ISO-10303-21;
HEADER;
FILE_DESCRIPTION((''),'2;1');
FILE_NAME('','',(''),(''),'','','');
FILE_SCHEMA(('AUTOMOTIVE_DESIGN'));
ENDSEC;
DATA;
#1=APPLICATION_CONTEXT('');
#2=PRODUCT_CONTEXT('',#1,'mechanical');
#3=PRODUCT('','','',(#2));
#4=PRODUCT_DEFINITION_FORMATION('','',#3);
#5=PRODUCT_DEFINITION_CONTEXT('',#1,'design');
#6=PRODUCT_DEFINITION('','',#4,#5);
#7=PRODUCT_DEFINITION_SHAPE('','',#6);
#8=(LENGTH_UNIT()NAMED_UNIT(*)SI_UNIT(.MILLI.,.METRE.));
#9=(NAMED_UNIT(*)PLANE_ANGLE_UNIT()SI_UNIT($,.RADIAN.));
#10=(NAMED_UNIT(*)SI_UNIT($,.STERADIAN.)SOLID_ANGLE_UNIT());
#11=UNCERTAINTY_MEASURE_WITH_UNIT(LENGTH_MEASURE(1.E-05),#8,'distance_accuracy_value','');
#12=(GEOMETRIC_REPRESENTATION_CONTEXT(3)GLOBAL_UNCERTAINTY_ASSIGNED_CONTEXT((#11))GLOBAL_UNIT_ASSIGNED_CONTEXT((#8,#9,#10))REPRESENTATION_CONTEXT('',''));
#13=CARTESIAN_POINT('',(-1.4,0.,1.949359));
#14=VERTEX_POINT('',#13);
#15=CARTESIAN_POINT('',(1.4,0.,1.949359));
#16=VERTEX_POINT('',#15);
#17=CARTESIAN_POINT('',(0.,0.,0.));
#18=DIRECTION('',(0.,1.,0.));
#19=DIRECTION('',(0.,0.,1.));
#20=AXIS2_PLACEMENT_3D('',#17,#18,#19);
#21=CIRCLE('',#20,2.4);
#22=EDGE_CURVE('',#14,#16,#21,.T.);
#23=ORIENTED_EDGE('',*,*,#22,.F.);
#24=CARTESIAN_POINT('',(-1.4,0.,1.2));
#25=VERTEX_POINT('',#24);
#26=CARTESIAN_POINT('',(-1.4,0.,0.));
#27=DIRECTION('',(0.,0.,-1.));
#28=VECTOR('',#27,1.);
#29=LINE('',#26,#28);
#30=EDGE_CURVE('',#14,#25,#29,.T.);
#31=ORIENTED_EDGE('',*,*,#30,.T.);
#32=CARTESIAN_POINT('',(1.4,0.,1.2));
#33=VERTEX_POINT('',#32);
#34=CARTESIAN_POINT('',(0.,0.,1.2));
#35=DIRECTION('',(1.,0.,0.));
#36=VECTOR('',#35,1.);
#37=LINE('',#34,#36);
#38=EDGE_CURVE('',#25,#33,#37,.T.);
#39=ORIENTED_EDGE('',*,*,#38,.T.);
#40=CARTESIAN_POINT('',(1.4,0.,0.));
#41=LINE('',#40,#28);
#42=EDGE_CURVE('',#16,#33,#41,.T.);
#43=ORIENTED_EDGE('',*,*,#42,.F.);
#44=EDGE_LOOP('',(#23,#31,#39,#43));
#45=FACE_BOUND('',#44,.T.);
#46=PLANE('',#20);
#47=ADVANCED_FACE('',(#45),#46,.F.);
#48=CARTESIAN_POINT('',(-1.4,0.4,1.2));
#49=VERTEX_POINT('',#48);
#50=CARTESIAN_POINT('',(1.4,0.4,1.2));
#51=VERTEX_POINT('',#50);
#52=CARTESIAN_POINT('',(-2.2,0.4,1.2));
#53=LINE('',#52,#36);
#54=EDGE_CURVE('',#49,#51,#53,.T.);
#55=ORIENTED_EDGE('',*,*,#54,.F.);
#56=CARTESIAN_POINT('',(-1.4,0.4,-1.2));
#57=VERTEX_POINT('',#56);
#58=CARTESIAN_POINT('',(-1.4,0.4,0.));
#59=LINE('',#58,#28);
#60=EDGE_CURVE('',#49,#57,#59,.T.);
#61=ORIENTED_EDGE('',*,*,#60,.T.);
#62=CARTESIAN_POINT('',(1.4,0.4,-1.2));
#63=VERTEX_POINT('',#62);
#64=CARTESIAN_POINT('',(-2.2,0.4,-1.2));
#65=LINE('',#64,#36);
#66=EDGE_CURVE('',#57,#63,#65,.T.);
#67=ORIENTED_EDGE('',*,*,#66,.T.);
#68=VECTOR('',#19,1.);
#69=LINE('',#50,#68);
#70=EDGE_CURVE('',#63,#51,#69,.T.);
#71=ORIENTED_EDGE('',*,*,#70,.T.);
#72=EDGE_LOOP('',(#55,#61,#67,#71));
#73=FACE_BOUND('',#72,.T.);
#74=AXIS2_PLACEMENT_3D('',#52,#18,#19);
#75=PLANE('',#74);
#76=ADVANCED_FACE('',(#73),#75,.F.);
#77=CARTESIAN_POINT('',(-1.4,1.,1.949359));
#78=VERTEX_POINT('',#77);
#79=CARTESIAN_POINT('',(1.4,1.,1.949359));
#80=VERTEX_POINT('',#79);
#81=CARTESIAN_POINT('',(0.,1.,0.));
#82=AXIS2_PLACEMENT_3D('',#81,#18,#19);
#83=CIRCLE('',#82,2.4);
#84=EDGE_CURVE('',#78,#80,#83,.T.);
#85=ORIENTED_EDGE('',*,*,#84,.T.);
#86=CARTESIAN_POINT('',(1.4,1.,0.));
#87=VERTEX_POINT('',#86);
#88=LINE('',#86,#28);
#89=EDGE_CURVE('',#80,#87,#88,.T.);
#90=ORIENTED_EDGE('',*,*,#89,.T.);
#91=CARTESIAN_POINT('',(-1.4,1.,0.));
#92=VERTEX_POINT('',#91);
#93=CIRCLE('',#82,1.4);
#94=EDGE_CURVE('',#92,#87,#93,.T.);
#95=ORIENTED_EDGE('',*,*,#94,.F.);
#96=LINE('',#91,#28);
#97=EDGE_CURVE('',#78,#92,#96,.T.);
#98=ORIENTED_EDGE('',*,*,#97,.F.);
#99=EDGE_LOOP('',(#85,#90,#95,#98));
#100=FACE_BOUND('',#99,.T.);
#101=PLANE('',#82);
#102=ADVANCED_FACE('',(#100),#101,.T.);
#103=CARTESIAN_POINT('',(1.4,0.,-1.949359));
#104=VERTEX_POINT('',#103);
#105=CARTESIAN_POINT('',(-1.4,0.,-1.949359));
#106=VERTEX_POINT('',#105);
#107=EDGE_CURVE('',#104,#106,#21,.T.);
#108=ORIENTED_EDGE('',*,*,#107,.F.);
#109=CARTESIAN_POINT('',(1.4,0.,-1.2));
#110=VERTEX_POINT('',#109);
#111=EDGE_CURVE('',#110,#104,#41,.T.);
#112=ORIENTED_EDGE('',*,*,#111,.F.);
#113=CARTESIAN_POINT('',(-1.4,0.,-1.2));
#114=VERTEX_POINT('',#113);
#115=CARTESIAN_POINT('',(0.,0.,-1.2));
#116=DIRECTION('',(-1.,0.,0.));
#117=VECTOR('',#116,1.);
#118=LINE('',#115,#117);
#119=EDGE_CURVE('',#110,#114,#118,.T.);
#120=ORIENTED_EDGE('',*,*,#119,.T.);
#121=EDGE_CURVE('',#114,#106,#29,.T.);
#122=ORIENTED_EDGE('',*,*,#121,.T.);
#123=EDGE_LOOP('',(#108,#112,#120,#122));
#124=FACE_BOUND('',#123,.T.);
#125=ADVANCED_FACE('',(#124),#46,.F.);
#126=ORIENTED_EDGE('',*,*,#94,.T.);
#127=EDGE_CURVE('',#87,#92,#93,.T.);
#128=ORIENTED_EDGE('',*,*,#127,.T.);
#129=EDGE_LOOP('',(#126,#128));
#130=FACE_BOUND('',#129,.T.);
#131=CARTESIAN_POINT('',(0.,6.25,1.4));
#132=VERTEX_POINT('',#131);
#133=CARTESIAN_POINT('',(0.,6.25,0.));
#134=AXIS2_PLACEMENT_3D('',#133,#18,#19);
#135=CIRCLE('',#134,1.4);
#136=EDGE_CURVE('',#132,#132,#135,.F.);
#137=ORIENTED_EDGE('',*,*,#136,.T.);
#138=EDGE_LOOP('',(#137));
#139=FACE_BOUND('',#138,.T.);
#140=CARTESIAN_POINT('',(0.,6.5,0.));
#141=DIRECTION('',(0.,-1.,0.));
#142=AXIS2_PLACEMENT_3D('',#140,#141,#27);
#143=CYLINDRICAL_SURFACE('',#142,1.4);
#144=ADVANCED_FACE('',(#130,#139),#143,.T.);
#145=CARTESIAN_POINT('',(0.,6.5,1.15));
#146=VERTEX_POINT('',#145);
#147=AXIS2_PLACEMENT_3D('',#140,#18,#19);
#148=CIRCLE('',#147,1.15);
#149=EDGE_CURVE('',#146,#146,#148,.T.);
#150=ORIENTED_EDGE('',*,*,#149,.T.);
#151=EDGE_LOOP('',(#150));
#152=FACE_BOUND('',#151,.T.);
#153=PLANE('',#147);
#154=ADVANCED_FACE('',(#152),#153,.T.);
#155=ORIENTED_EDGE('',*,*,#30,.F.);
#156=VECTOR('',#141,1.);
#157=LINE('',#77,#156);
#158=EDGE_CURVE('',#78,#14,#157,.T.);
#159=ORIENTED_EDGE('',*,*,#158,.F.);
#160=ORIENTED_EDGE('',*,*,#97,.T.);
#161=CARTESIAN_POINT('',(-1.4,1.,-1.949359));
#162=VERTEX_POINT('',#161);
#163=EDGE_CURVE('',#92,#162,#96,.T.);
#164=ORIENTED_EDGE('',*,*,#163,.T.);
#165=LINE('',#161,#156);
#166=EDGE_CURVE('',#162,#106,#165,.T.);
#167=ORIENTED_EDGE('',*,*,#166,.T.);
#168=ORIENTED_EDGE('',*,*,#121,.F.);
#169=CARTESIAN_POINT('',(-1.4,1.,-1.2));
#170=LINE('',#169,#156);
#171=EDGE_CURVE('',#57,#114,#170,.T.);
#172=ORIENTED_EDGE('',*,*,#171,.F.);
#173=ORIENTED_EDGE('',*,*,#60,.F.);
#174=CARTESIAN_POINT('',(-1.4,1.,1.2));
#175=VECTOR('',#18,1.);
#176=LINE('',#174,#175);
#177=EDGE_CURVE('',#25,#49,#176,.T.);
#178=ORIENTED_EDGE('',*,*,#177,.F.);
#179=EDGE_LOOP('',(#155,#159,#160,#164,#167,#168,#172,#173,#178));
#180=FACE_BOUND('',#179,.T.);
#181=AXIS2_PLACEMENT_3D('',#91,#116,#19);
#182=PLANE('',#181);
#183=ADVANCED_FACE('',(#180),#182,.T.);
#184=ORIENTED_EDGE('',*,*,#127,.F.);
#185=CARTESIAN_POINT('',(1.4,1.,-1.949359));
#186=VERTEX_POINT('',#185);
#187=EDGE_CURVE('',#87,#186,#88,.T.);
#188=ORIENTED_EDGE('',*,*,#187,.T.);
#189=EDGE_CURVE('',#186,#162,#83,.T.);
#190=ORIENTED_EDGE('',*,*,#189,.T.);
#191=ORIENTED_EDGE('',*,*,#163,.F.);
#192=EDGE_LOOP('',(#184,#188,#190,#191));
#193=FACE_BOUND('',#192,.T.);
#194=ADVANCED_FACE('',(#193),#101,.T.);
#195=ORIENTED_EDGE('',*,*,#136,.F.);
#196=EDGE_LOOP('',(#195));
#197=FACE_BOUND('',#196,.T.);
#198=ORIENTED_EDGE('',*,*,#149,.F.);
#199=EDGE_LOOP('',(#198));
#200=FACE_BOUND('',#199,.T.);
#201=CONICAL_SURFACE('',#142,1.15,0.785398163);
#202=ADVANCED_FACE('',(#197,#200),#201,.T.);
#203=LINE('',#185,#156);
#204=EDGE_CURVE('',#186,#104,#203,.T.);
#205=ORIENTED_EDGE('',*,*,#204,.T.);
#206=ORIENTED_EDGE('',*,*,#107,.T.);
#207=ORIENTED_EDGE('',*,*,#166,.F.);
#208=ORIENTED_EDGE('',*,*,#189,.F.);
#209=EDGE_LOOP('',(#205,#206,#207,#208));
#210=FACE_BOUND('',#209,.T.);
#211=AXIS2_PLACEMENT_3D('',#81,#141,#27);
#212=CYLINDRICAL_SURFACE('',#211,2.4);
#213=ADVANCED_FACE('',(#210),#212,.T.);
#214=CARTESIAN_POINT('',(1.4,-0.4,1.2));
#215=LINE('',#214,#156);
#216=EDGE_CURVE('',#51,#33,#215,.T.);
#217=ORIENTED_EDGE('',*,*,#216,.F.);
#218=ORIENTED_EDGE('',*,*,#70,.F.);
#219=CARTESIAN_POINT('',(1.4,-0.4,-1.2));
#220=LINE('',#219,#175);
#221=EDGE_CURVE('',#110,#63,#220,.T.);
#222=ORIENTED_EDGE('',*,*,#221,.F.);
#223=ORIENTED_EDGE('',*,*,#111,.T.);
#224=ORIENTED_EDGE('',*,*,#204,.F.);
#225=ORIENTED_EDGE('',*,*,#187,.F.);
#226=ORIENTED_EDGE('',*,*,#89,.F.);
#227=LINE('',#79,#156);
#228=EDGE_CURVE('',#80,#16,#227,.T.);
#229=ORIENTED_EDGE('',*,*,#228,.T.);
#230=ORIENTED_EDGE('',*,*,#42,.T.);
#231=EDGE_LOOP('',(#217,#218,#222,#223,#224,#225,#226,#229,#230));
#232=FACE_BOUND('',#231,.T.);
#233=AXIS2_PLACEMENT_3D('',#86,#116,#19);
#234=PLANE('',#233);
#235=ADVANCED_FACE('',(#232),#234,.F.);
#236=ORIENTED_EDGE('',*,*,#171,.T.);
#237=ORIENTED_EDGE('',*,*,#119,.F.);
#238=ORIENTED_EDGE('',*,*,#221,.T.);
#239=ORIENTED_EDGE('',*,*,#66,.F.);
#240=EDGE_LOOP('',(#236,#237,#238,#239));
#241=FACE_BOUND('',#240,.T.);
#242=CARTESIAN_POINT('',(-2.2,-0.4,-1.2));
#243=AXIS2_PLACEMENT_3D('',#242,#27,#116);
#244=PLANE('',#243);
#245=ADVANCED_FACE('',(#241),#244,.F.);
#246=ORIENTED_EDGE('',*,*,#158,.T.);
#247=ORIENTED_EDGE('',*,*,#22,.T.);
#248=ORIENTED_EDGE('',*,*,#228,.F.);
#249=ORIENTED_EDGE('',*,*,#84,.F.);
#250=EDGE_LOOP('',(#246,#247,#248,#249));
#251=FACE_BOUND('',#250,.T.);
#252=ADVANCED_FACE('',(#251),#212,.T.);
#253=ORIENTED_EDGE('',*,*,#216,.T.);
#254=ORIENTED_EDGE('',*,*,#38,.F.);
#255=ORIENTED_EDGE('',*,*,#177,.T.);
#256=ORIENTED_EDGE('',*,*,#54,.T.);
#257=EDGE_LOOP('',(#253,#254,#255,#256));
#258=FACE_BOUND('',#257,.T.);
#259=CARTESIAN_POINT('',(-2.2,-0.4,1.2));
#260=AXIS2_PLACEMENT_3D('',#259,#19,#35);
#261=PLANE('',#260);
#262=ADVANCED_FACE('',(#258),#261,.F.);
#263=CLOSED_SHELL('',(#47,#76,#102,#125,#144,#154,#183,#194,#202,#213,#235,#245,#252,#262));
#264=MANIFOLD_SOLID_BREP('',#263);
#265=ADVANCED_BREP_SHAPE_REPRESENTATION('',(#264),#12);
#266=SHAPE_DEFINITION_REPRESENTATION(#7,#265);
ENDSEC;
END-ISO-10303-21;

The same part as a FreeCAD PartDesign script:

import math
import FreeCAD as App
import Part
import Sketcher

V = App.Vector
Q = App.Units.Quantity


def edges_at(feature, points):
    """Names of the edges that pass closest to the given points."""
    edges = feature.Shape.Edges
    near = lambda p: min(range(len(edges)), key=lambda i: edges[i].distToShape(Part.Vertex(*p))[0])
    return sorted({f"Edge{near(p) + 1}" for p in points})

doc = App.newDocument("Part")
params = doc.addObject("Spreadsheet::Sheet", "Params")
for row, (alias, value) in enumerate([
    ("sketch1_diameter", "2.8 mm"),
    ("pad1_length", "6.5 mm"),
    ("sketch2_radius", "2.4 mm"),
    ("sketch2_radius2", "1.4 mm"),
    ("pad2_length", "1 mm"),
    ("chamfer_size", "0.25 mm"),
    ("sketch3_width", "0.8 mm"),
    ("sketch3_height", "2.4 mm"),
    ("pocket1_length", "3.6 mm"),
], start=1):
    params.set(f"A{row}", alias)
    params.set(f"B{row}", "=" + value)
    params.setAlias(f"B{row}", alias)

body = doc.addObject("PartDesign::Body", "Body")

sketch1 = body.newObject("Sketcher::SketchObject", "Sketch")
sketch1.AttachmentSupport = (doc.getObject("XZ_Plane"), [""])
sketch1.MapMode = "FlatFace"
sketch1.addGeometry(Part.Circle(V(0, 0, 0), V(0, 0, 1), 1.4), False)
sketch1.addConstraint([
    Sketcher.Constraint("Coincident", 0, 3, -1, 1),
    Sketcher.Constraint("Diameter", 0, Q("2.8 mm")),
])
sketch1.setExpression("Constraints[1]", "Params.sketch1_diameter")
pad1 = body.newObject("PartDesign::Pad", "Pad")
pad1.Profile = sketch1
pad1.setExpression("Length", "Params.pad1_length")
pad1.Reversed = True

sketch2 = body.newObject("Sketcher::SketchObject", "Sketch001")
sketch2.AttachmentSupport = (doc.getObject("XZ_Plane"), [""])
sketch2.MapMode = "FlatFace"
sketch2.addGeometry([
    Part.LineSegment(V(-1.4, 0, 0), V(-1.4, 1.9, 0)),
    Part.ArcOfCircle(Part.Circle(V(0, 0, 0), V(0, 0, 1), 2.4), math.radians(54), math.radians(126)),
    Part.LineSegment(V(1.4, 1.9, 0), V(1.4, 0, 0)),
    Part.ArcOfCircle(Part.Circle(V(0, 0, 0), V(0, 0, 1), 1.4), math.radians(0), math.radians(180)),
    Part.LineSegment(V(-1.4, -1.9, 0), V(-1.4, 0, 0)),
    Part.ArcOfCircle(Part.Circle(V(0, 0, 0), V(0, 0, 1), 1.4), math.radians(180), math.radians(360)),
    Part.LineSegment(V(1.4, 0, 0), V(1.4, -1.9, 0)),
    Part.ArcOfCircle(Part.Circle(V(0, 0, 0), V(0, 0, 1), 2.4), math.radians(-126), math.radians(-54)),
], False)
sketch2.addConstraint([
    Sketcher.Constraint("Coincident", 0, 2, 1, 2),
    Sketcher.Constraint("Coincident", 1, 1, 2, 1),
    Sketcher.Constraint("Tangent", 2, 2, 3, 1),
    Sketcher.Constraint("Tangent", 3, 2, 0, 1),
    Sketcher.Constraint("Tangent", 4, 2, 5, 1),
    Sketcher.Constraint("Tangent", 5, 2, 6, 1),
    Sketcher.Constraint("Coincident", 6, 2, 7, 2),
    Sketcher.Constraint("Coincident", 7, 1, 4, 1),
    Sketcher.Constraint("Vertical", 0),
    Sketcher.Constraint("Vertical", 2),
    Sketcher.Constraint("Vertical", 4),
    Sketcher.Constraint("Vertical", 6),
    Sketcher.Constraint("Coincident", 1, 3, -1, 1),
    Sketcher.Constraint("Coincident", 3, 3, -1, 1),
    Sketcher.Constraint("Coincident", 5, 3, -1, 1),
    Sketcher.Constraint("Coincident", 7, 3, -1, 1),
    Sketcher.Constraint("Equal", 3, 5),
    Sketcher.Constraint("Equal", 1, 7),
    Sketcher.Constraint("Radius", 1, Q("2.4 mm")),
    Sketcher.Constraint("Radius", 3, Q("1.4 mm")),
])
sketch2.setExpression("Constraints[18]", "Params.sketch2_radius")
sketch2.setExpression("Constraints[19]", "Params.sketch2_radius2")
pad2 = body.newObject("PartDesign::Pad", "Pad001")
pad2.Profile = sketch2
pad2.setExpression("Length", "Params.pad2_length")
pad2.Reversed = True
doc.recompute()

chamfer = body.newObject("PartDesign::Chamfer", "Chamfer")
chamfer.Base = (pad2, edges_at(pad2, [(0, 6.5, 1.4)]))
chamfer.setExpression("Size", "Params.chamfer_size")

sketch3 = body.newObject("Sketcher::SketchObject", "Sketch002")
sketch3.AttachmentSupport = (doc.getObject("YZ_Plane"), [""])
sketch3.MapMode = "FlatFace"
sketch3.AttachmentOffset = App.Placement(V(0, 0, 1.4), App.Rotation())
sketch3.addGeometry([
    Part.LineSegment(V(0.4, 1.2, 0), V(-0.4, 1.2, 0)),
    Part.LineSegment(V(-0.4, 1.2, 0), V(-0.4, -1.2, 0)),
    Part.LineSegment(V(-0.4, -1.2, 0), V(0.4, -1.2, 0)),
    Part.LineSegment(V(0.4, -1.2, 0), V(0.4, 1.2, 0)),
], False)
sketch3.addConstraint([
    Sketcher.Constraint("Coincident", 0, 2, 1, 1),
    Sketcher.Constraint("Coincident", 1, 2, 2, 1),
    Sketcher.Constraint("Coincident", 2, 2, 3, 1),
    Sketcher.Constraint("Coincident", 3, 2, 0, 1),
    Sketcher.Constraint("Horizontal", 0),
    Sketcher.Constraint("Vertical", 1),
    Sketcher.Constraint("Horizontal", 2),
    Sketcher.Constraint("Vertical", 3),
    Sketcher.Constraint("Symmetric", 0, 2, 2, 2, -1, 1),
    Sketcher.Constraint("DistanceX", 0, 2, 0, 1, Q("0.8 mm")),
    Sketcher.Constraint("DistanceY", 1, 2, 1, 1, Q("2.4 mm")),
])
sketch3.setExpression("Constraints[9]", "Params.sketch3_width")
sketch3.setExpression("Constraints[10]", "Params.sketch3_height")
pocket1 = body.newObject("PartDesign::Pocket", "Pocket")
pocket1.Profile = sketch3
pocket1.setExpression("Length", "Params.pocket1_length")

doc.recompute()
